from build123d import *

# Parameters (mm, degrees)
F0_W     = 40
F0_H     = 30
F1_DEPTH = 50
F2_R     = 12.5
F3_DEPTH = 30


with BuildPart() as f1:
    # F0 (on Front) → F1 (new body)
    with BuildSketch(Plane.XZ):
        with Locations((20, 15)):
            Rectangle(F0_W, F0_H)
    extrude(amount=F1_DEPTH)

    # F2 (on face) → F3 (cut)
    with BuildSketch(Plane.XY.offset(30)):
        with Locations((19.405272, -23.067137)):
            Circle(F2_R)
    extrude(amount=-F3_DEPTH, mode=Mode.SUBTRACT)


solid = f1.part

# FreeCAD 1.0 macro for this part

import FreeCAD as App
import Part
import Sketcher
Q = App.Units.Quantity

doc = App.newDocument("Part")
params = doc.addObject("Spreadsheet::Sheet", "Params")
for row, (alias, value) in enumerate([
    ("sketch1_width", "40 mm"),
    ("sketch1_height", "30 mm"),
    ("pad1_length", "50 mm"),
    ("sketch2_diameter", "25 mm"),
    ("pocket1_length", "30 mm"),
], start=1):
    params.set(f"A{row}", alias)
    params.set(f"B{row}", "=" + value)
    params.setAlias(f"B{row}", alias)

body = doc.addObject("PartDesign::Body", "Body")

sketch1 = doc.addObject("Sketcher::SketchObject", "Sketch")
body.addObject(sketch1)
sketch1.AttachmentSupport = (doc.XZ_Plane, [""])
sketch1.MapMode = "FlatFace"
sketch1.addGeometry(Part.LineSegment(App.Vector(0, 30, 0), App.Vector(0, 0, 0)), False)
sketch1.addGeometry(Part.LineSegment(App.Vector(0, 0, 0), App.Vector(40, 0, 0)), False)
sketch1.addGeometry(Part.LineSegment(App.Vector(40, 0, 0), App.Vector(40, 30, 0)), False)
sketch1.addGeometry(Part.LineSegment(App.Vector(40, 30, 0), App.Vector(0, 30, 0)), False)
sketch1.addConstraint(Sketcher.Constraint("Coincident", 0, 2, 1, 1))
sketch1.addConstraint(Sketcher.Constraint("Coincident", 1, 2, 2, 1))
sketch1.addConstraint(Sketcher.Constraint("Coincident", 2, 2, 3, 1))
sketch1.addConstraint(Sketcher.Constraint("Coincident", 3, 2, 0, 1))
sketch1.addConstraint(Sketcher.Constraint("Vertical", 0))
sketch1.addConstraint(Sketcher.Constraint("Horizontal", 1))
sketch1.addConstraint(Sketcher.Constraint("Vertical", 2))
sketch1.addConstraint(Sketcher.Constraint("Horizontal", 3))
sketch1.addConstraint(Sketcher.Constraint("Coincident", 0, 2, -1, 1))
sketch1.addConstraint(Sketcher.Constraint("DistanceX", 1, 1, 1, 2, Q("40 mm")))
sketch1.addConstraint(Sketcher.Constraint("DistanceY", 0, 2, 0, 1, Q("30 mm")))
sketch1.setExpression("Constraints[9]", "Params.sketch1_width")
sketch1.setExpression("Constraints[10]", "Params.sketch1_height")
pad1 = doc.addObject("PartDesign::Pad", "Pad")
body.addObject(pad1)
pad1.Profile = sketch1
pad1.setExpression("Length", "Params.pad1_length")

sketch2 = doc.addObject("Sketcher::SketchObject", "Sketch001")
body.addObject(sketch2)
sketch2.AttachmentSupport = (doc.XY_Plane, [""])
sketch2.MapMode = "FlatFace"
sketch2.AttachmentOffset = App.Placement(App.Vector(0, 0, 30), App.Rotation())
sketch2.addGeometry(Part.Circle(App.Vector(19, -23, 0), App.Vector(0, 0, 1), 12), False)
sketch2.addConstraint(Sketcher.Constraint("Diameter", 0, Q("25 mm")))
sketch2.addConstraint(Sketcher.Constraint("DistanceX", -1, 1, 0, 3, Q("19.405272 mm")))
sketch2.addConstraint(Sketcher.Constraint("DistanceY", 0, 3, -1, 1, Q("23.067137 mm")))
sketch2.setExpression("Constraints[0]", "Params.sketch2_diameter")
pocket1 = doc.addObject("PartDesign::Pocket", "Pocket")
body.addObject(pocket1)
pocket1.Profile = sketch2
pocket1.setExpression("Length", "Params.pocket1_length")

doc.recompute()
